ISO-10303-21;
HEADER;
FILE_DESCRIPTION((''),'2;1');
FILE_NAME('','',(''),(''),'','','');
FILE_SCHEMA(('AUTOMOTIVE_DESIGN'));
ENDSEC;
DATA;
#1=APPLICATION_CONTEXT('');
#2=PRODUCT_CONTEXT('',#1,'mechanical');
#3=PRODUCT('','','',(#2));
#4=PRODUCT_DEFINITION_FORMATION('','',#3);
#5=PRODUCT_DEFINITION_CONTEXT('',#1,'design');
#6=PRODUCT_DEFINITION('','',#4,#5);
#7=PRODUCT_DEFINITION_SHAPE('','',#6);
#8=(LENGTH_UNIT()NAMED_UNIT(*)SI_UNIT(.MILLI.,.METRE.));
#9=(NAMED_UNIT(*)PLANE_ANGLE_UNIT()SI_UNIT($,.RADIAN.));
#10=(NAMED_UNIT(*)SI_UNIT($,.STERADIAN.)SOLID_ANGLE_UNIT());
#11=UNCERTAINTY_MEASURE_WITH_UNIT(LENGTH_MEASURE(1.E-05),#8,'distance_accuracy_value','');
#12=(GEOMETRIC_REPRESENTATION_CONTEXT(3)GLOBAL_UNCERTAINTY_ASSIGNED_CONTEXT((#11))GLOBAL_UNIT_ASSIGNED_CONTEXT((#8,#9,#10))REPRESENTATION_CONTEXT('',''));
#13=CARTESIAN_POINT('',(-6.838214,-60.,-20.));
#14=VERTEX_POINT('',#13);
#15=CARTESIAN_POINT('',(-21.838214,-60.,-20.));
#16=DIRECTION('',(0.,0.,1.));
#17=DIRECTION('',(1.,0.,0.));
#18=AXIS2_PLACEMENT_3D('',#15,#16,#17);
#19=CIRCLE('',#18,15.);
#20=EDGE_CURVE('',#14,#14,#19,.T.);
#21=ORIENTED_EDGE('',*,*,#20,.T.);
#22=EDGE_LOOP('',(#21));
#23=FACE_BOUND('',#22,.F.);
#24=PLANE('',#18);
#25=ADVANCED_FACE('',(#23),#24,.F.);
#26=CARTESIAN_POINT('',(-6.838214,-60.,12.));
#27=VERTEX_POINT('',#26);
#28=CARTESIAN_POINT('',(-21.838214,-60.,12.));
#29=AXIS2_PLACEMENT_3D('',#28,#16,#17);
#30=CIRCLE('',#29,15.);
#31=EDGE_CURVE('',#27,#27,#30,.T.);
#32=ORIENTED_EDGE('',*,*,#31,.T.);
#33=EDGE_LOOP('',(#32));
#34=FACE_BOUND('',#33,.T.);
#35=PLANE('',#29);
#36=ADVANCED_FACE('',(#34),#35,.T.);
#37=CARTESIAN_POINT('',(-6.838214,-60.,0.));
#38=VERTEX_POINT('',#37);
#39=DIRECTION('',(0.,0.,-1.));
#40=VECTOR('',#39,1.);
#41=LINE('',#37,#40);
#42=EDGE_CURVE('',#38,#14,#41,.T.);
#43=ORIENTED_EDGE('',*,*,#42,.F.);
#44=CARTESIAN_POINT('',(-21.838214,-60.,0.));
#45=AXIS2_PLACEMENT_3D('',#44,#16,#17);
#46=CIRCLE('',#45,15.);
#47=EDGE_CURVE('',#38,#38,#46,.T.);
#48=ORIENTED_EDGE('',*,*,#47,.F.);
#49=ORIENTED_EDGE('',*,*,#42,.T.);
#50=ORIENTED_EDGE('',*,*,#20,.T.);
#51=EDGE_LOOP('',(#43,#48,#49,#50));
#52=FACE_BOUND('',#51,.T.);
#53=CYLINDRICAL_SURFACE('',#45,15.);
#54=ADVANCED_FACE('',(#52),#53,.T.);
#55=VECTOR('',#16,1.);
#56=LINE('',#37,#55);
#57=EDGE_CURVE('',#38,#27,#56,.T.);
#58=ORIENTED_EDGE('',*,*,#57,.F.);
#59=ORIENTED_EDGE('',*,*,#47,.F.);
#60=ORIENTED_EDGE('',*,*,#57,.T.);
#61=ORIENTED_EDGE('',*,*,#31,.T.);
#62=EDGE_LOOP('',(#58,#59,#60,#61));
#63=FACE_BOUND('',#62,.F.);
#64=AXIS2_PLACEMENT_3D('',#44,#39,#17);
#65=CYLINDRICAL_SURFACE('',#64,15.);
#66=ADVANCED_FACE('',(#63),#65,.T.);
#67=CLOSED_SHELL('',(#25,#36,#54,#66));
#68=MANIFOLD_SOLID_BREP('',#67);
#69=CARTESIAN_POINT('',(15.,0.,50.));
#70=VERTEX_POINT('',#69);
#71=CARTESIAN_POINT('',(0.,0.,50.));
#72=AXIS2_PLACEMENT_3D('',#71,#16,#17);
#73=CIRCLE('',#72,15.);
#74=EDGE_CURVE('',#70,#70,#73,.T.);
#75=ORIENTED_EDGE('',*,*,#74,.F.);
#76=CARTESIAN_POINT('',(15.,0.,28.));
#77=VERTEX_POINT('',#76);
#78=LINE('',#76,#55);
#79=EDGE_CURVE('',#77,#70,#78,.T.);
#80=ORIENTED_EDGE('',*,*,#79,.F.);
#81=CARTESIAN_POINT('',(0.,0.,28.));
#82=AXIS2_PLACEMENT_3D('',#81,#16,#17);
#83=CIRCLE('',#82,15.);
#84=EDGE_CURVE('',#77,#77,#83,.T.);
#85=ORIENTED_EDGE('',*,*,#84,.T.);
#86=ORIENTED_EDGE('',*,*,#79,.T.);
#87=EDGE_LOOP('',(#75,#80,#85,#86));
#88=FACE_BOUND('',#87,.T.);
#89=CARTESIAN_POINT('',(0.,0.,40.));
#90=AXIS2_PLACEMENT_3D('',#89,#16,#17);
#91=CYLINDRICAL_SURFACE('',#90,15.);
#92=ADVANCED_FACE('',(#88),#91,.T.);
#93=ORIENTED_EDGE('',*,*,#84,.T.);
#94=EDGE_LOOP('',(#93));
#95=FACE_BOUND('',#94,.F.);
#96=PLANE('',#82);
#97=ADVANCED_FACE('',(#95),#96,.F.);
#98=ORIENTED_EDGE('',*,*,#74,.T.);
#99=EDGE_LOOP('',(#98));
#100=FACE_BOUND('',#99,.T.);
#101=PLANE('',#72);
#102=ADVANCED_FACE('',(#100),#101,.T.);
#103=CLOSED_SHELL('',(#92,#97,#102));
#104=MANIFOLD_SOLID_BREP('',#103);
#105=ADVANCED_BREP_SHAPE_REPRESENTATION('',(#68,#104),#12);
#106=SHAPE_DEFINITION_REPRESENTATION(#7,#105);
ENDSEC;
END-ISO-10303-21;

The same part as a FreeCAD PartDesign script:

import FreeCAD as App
import Part
import Sketcher

V = App.Vector

doc = App.newDocument("Part")
body = doc.addObject("PartDesign::Body", "Body")

# Sketch on XY plane
sketch1 = body.newObject("Sketcher::SketchObject", "Sketch")
sketch1.AttachmentSupport = (doc.getObject("XY_Plane"), [""])
sketch1.MapMode = "FlatFace"
sketch1.AttachmentOffset = App.Placement(V(0, 0, 40), App.Rotation())
sketch1.addGeometry(Part.Circle(V(0, 0, 0), V(0, 0, 1), 15), False)
sketch1.addConstraint(Sketcher.Constraint("Coincident", 0, 3, -1, 1))
sketch1.addConstraint(Sketcher.Constraint("Diameter", 0, 30.0))
pad1 = body.newObject("PartDesign::Pad", "Pad")
pad1.Profile = sketch1
pad1.Type = "TwoLengths"
pad1.Length = 10
pad1.Length2 = 12
body2 = doc.addObject("PartDesign::Body", "Body001")

# Sketch on XY plane
sketch2 = body2.newObject("Sketcher::SketchObject", "Sketch001")
sketch2.AttachmentSupport = (doc.getObject("XY_Plane001"), [""])
sketch2.MapMode = "FlatFace"
sketch2.addGeometry(Part.Circle(V(-22, -60, 0), V(0, 0, 1), 15), False)
sketch2.addConstraint(Sketcher.Constraint("Diameter", 0, 30.0))
sketch2.addConstraint(Sketcher.Constraint("DistanceY", 0, 3, -1, 1, 60.0))
sketch2.addConstraint(Sketcher.Constraint("DistanceX", 0, 3, -1, 1, 21.838214))
pad2 = body2.newObject("PartDesign::Pad", "Pad001")
pad2.Profile = sketch2
pad2.Type = "TwoLengths"
pad2.Length = 20
pad2.Length2 = 12
pad2.Reversed = True

doc.recompute()
